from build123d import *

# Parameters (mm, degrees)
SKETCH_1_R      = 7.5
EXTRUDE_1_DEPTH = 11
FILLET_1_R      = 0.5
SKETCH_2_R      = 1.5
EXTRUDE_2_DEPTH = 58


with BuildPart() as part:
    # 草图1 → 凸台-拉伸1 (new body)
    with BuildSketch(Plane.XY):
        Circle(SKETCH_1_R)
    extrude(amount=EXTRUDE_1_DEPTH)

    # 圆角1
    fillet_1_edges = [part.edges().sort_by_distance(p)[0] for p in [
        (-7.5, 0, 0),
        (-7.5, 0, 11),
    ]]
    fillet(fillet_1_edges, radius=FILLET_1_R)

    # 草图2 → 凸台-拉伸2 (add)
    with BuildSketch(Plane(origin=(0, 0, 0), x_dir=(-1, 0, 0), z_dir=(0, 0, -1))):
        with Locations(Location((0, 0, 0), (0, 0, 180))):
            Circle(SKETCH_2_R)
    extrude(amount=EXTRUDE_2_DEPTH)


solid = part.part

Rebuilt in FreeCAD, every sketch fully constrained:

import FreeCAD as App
import Part
import Sketcher
from FreeCAD import Vector


def edges_at(feature, points):
    """Names of the edges that pass closest to the given points."""
    edges = feature.Shape.Edges
    near = lambda p: min(range(len(edges)), key=lambda i: edges[i].distToShape(Part.Vertex(*p))[0])
    return sorted({f"Edge{near(p) + 1}" for p in points})

doc = App.newDocument("Part")
body = doc.addObject("PartDesign::Body", "Body")

sketch1 = doc.addObject("Sketcher::SketchObject", "Sketch")
body.addObject(sketch1)
sketch1.AttachmentSupport = (doc.XY_Plane, [""])
sketch1.MapMode = "FlatFace"
sketch1.addGeometry(Part.Circle(Vector(0, 0, 0), Vector(0, 0, 1), 8), False)
sketch1.addConstraint([
    Sketcher.Constraint("Coincident", 0, 3, -1, 1),
    Sketcher.Constraint("Diameter", 0, 15.0),
])
pad1 = doc.addObject("PartDesign::Pad", "Pad")
body.addObject(pad1)
pad1.Profile = sketch1
pad1.Length = 11
doc.recompute()

fillet = doc.addObject("PartDesign::Fillet", "Fillet")
body.addObject(fillet)
fillet.Base = (pad1, edges_at(pad1, [(-7.5, 0, 0), (-7.5, 0, 11)]))
fillet.Radius = 0.5

sketch2 = doc.addObject("Sketcher::SketchObject", "Sketch001")
body.addObject(sketch2)
sketch2.AttachmentSupport = (doc.XY_Plane, [""])
sketch2.MapMode = "FlatFace"
sketch2.addGeometry(Part.Circle(Vector(0, 0, 0), Vector(0, 0, 1), 1.5), False)
sketch2.addConstraint([
    Sketcher.Constraint("Coincident", 0, 3, -1, 1),
    Sketcher.Constraint("Diameter", 0, 3.0),
])
pad2 = doc.addObject("PartDesign::Pad", "Pad001")
body.addObject(pad2)
pad2.Profile = sketch2
pad2.Length = 58
pad2.Reversed = True

doc.recompute()
